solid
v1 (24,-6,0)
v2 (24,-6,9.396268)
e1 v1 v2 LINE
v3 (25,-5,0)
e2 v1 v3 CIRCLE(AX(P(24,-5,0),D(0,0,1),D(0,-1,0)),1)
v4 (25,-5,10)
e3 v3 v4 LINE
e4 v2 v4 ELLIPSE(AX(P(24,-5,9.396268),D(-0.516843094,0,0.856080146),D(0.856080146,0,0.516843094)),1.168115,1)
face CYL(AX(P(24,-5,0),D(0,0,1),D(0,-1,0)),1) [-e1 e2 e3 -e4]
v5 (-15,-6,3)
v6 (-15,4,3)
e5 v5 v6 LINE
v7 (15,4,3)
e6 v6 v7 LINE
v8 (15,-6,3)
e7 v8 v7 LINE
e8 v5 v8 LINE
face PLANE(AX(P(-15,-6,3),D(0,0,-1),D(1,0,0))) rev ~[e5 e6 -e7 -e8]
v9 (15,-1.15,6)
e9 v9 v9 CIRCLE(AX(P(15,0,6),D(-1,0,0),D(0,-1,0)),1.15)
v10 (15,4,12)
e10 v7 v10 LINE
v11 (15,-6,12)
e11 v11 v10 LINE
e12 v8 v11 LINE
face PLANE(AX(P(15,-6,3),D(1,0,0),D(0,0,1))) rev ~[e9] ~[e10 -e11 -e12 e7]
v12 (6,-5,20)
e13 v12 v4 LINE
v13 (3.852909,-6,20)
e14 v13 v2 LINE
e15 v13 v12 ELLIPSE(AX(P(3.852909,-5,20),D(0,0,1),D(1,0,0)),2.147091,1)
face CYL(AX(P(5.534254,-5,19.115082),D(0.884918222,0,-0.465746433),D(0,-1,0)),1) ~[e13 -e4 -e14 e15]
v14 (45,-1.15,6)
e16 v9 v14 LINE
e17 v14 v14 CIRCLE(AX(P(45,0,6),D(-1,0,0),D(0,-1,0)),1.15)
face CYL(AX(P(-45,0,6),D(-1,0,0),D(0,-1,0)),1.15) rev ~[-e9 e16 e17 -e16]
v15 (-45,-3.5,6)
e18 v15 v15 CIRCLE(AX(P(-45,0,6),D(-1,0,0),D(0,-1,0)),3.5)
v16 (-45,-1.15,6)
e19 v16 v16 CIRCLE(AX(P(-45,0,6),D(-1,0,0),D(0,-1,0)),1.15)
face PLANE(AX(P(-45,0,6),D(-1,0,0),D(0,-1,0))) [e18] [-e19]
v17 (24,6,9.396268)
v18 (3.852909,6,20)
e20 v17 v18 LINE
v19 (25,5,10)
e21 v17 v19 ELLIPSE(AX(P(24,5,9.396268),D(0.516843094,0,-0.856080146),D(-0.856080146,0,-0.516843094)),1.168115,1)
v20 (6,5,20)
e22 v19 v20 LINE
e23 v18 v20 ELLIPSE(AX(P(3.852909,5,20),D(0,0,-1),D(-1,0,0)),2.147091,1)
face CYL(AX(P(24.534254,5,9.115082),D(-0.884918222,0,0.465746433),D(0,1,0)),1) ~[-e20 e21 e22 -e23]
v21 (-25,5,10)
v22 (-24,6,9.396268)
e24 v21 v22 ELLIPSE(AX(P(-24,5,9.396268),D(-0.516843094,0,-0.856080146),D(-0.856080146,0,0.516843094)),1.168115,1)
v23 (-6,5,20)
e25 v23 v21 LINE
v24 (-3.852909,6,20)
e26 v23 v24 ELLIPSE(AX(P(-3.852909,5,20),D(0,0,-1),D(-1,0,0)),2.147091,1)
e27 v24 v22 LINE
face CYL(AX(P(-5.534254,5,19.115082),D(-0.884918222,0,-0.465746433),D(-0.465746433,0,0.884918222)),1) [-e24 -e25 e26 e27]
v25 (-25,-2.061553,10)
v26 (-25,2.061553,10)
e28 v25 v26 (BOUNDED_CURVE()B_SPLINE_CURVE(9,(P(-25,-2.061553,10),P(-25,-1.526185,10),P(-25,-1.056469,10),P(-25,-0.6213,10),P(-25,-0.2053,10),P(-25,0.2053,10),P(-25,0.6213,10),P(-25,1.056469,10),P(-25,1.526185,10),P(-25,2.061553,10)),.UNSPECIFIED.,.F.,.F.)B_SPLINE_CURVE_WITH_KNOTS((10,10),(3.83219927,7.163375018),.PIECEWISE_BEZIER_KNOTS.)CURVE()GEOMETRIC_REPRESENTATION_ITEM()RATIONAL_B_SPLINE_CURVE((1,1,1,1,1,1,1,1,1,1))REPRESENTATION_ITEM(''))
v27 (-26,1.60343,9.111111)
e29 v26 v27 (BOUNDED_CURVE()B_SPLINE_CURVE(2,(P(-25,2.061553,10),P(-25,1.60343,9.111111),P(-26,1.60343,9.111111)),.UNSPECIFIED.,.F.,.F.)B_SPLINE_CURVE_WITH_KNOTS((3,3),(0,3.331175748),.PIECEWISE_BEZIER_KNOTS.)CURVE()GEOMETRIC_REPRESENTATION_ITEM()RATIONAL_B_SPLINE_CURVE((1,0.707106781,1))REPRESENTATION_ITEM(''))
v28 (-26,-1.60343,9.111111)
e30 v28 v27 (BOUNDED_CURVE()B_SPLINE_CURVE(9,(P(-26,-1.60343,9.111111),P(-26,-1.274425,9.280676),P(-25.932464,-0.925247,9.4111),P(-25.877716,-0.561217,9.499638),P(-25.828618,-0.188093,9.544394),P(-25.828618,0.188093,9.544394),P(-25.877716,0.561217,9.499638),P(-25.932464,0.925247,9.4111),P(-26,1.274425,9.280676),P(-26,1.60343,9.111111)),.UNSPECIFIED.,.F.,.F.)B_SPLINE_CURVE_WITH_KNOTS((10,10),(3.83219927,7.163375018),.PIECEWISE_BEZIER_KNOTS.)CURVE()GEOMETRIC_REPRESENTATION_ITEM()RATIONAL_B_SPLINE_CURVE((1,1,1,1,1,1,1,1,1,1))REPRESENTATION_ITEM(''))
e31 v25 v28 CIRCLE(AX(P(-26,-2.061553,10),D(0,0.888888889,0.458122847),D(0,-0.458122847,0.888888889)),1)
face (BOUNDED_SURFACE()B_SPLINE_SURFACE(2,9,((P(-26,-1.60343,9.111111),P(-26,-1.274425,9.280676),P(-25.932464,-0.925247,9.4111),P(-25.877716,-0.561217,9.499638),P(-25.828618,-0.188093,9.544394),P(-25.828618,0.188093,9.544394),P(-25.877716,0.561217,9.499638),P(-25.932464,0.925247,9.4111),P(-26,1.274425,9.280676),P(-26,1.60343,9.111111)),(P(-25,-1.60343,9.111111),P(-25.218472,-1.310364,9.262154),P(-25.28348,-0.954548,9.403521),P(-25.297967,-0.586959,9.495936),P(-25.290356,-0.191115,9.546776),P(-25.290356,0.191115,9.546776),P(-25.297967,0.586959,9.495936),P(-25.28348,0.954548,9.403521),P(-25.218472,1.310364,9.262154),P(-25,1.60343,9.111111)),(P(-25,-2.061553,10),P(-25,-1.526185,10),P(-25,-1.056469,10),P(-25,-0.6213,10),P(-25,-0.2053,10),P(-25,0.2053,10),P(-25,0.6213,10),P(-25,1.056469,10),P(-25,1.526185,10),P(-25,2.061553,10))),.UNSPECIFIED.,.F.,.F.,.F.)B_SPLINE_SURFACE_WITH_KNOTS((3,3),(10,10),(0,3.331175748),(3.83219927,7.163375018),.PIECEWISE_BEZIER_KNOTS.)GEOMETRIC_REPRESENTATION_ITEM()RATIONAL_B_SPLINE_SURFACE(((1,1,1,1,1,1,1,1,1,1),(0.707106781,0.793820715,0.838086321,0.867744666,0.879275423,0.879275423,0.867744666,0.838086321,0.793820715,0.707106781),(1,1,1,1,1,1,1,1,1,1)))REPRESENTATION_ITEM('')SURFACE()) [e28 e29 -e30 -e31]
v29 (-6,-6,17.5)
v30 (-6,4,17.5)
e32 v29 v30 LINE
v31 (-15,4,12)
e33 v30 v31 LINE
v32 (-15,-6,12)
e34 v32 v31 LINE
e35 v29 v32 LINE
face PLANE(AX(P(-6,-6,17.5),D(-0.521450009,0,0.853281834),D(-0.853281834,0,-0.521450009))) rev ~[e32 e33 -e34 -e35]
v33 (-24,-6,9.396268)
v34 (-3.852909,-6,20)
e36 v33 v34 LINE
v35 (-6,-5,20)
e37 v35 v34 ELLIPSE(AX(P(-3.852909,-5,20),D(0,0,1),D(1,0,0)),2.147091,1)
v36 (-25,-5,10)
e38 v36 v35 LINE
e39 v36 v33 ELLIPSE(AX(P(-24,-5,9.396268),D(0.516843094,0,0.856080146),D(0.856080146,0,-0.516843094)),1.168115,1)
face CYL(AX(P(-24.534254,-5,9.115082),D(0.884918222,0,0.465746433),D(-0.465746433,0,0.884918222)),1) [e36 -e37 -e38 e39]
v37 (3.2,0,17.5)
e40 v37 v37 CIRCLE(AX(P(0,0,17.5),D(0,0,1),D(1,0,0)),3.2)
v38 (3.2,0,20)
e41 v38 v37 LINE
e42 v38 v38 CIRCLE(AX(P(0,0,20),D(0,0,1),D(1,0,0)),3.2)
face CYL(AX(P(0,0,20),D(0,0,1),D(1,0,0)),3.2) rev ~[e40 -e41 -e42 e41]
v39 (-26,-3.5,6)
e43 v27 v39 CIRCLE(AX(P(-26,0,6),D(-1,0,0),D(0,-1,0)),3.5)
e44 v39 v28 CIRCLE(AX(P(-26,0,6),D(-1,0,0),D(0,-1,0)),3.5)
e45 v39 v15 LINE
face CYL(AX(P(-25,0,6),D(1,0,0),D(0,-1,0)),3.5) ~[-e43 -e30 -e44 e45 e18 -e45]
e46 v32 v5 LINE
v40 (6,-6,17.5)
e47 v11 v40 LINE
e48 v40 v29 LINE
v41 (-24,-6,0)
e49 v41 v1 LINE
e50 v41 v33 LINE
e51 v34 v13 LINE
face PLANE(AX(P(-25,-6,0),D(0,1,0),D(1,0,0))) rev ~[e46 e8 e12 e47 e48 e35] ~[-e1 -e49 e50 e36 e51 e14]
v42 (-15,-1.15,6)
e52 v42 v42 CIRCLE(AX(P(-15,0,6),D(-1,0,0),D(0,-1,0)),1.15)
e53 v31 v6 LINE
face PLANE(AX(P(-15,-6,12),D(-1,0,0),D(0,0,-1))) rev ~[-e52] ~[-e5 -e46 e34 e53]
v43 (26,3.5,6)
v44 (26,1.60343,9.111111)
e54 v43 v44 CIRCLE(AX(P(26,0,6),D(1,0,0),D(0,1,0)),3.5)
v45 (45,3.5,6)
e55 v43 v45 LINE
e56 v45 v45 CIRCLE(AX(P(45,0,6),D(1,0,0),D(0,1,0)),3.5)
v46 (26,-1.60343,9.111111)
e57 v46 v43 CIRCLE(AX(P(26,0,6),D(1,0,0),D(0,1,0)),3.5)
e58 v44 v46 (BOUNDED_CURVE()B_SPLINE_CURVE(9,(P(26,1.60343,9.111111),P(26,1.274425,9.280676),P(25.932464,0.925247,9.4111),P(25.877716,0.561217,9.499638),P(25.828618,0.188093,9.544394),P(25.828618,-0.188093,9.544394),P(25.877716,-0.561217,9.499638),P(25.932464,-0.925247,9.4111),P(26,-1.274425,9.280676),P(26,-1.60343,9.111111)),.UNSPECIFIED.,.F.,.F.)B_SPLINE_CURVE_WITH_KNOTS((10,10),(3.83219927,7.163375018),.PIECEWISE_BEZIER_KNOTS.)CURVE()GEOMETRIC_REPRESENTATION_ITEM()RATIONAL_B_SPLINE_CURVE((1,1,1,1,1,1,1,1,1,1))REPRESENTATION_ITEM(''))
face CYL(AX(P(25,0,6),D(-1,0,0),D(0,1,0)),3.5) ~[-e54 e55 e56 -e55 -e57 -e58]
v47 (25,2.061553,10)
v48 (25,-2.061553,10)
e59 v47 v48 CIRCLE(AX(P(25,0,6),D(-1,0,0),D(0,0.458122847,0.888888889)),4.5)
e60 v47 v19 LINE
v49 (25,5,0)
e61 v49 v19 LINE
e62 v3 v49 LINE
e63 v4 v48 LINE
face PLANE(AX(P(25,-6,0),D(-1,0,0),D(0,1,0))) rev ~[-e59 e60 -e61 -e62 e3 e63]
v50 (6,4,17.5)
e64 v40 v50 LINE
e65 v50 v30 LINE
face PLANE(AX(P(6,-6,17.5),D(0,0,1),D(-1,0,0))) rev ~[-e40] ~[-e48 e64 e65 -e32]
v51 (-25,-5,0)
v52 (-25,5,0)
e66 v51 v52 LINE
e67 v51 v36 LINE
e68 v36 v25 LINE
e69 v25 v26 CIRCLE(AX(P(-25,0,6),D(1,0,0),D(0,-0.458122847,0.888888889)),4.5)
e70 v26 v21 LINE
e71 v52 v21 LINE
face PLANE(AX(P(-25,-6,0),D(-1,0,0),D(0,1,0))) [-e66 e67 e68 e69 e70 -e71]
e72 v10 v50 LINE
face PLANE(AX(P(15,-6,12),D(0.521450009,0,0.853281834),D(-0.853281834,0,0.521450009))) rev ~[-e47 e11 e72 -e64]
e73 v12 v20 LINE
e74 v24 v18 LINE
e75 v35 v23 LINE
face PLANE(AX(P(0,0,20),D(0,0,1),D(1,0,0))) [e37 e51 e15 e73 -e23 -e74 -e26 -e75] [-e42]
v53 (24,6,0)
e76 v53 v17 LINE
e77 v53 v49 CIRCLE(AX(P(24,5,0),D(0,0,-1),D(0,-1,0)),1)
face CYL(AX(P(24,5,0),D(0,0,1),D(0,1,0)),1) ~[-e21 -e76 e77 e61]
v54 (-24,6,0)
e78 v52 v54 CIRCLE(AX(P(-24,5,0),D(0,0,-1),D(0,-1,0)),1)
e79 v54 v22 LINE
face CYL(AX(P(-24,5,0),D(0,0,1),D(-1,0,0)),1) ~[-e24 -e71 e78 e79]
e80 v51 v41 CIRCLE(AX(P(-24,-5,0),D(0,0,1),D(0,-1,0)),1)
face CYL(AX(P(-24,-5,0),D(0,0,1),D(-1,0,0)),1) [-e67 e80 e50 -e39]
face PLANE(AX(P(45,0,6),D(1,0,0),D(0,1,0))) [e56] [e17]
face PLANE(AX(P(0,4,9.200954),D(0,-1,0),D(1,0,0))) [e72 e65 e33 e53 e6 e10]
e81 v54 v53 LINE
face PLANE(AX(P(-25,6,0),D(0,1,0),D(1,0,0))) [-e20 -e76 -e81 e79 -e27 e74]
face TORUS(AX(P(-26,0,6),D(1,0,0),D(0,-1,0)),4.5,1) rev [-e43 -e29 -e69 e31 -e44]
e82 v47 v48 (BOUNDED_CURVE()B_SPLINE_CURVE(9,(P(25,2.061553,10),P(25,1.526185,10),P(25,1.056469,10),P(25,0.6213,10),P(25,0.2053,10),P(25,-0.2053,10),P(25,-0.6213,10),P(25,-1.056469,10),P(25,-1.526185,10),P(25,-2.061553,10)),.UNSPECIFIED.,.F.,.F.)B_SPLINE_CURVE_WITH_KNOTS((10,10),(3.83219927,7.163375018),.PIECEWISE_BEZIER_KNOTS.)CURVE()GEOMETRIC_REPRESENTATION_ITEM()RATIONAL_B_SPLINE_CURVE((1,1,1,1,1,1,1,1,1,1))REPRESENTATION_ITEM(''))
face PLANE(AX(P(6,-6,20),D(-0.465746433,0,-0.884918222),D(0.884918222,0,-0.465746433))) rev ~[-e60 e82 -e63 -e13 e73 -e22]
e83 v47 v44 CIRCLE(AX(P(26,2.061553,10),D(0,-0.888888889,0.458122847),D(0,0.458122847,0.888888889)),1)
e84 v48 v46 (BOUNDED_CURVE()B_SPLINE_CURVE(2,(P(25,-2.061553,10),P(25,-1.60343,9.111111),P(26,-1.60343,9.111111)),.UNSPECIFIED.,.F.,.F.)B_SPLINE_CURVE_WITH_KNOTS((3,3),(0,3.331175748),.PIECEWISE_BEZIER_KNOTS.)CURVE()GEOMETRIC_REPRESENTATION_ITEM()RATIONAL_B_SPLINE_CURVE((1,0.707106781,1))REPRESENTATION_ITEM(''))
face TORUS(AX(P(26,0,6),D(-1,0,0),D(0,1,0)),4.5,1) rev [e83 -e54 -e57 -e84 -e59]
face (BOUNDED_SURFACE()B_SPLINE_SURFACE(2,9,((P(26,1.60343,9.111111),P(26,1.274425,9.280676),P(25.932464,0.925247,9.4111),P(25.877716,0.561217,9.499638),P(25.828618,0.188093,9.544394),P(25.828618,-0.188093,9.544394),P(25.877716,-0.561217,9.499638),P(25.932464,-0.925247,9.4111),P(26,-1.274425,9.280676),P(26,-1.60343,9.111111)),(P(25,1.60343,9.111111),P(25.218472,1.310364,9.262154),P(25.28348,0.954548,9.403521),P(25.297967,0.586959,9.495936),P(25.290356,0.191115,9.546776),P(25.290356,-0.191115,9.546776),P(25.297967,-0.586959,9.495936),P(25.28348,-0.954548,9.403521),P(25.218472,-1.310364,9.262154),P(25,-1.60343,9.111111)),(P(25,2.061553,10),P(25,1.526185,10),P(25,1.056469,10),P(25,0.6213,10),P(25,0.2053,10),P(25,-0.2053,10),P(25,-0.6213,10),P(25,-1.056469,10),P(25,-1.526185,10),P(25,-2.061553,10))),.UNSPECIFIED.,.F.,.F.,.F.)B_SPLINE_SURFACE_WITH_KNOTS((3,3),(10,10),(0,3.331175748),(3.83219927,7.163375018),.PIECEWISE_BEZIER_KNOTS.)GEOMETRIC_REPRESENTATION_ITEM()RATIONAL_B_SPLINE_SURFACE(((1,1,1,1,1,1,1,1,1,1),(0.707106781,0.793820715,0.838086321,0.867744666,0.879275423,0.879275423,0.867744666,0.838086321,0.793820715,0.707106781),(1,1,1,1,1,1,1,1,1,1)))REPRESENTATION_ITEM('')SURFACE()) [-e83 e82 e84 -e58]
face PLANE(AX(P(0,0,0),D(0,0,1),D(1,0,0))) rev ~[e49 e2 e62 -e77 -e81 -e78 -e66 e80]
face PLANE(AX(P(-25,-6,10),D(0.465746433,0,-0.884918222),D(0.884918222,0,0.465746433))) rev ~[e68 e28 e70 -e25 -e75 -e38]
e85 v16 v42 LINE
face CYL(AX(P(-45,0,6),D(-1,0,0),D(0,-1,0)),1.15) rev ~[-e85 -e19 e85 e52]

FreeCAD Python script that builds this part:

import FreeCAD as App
import Part
import Sketcher
from FreeCAD import Vector
Q = App.Units.Quantity


def edges_at(feature, points):
    """Names of the edges that pass closest to the given points."""
    edges = feature.Shape.Edges
    near = lambda p: min(range(len(edges)), key=lambda i: edges[i].distToShape(Part.Vertex(*p))[0])
    return sorted({f"Edge{near(p) + 1}" for p in points})

doc = App.newDocument("Part")
params = doc.addObject("Spreadsheet::Sheet", "Params")
for row, (alias, value) in enumerate([
    ("sketch1_width", "50 mm"),
    ("sketch1_height", "12 mm"),
    ("pad1_length", "20 mm"),
    ("sketch2_width", "12 mm"),
    ("sketch2_width2", "50 mm"),
    ("sketch2_height", "20 mm"),
    ("pocket1_length", "20 mm"),
    ("sketch3_width", "30 mm"),
    ("sketch3_width2", "12 mm"),
    ("sketch3_height", "9 mm"),
    ("pocket2_length", "10 mm"),
    ("sketch4_diameter", "6.4 mm"),
    ("pocket3_length", "5 mm"),
    ("sketch5_diameter", "7 mm"),
    ("pad2_length", "20 mm"),
    ("sketch6_diameter", "7 mm"),
    ("pad3_length", "20 mm"),
    ("fillet_radius", "1 mm"),
    ("sketch7_diameter", "2.3 mm"),
    ("pocket4_length", "200 mm"),
    ("fillet2_radius", "1 mm"),
], start=1):
    params.set(f"A{row}", alias)
    params.set(f"B{row}", "=" + value)
    params.setAlias(f"B{row}", alias)

body = doc.addObject("PartDesign::Body", "Body")

# Sketch on XY plane
sketch1 = doc.addObject("Sketcher::SketchObject", "Sketch")
body.addObject(sketch1)
sketch1.AttachmentSupport = (doc.XY_Plane, [""])
sketch1.MapMode = "FlatFace"
sketch1.addGeometry(Part.LineSegment(Vector(-25, 6, 0), Vector(-25, -6, 0)), False)
sketch1.addGeometry(Part.LineSegment(Vector(-25, -6, 0), Vector(25, -6, 0)), False)
sketch1.addGeometry(Part.LineSegment(Vector(25, -6, 0), Vector(25, 6, 0)), False)
sketch1.addGeometry(Part.LineSegment(Vector(25, 6, 0), Vector(-25, 6, 0)), False)
sketch1.addConstraint(Sketcher.Constraint("Coincident", 0, 2, 1, 1))
sketch1.addConstraint(Sketcher.Constraint("Coincident", 1, 2, 2, 1))
sketch1.addConstraint(Sketcher.Constraint("Coincident", 2, 2, 3, 1))
sketch1.addConstraint(Sketcher.Constraint("Coincident", 3, 2, 0, 1))
sketch1.addConstraint(Sketcher.Constraint("Vertical", 0))
sketch1.addConstraint(Sketcher.Constraint("Horizontal", 1))
sketch1.addConstraint(Sketcher.Constraint("Vertical", 2))
sketch1.addConstraint(Sketcher.Constraint("Horizontal", 3))
sketch1.addConstraint(Sketcher.Constraint("Symmetric", 0, 2, 2, 2, -1, 1))
sketch1.addConstraint(Sketcher.Constraint("DistanceX", 1, 1, 1, 2, Q("50 mm")))
sketch1.addConstraint(Sketcher.Constraint("DistanceY", 0, 2, 0, 1, Q("12 mm")))
sketch1.setExpression("Constraints[9]", "Params.sketch1_width")
sketch1.setExpression("Constraints[10]", "Params.sketch1_height")
pad1 = doc.addObject("PartDesign::Pad", "Pad")
body.addObject(pad1)
pad1.Profile = sketch1
pad1.setExpression("Length", "Params.pad1_length")

# Sketch on XZ plane
sketch2 = doc.addObject("Sketcher::SketchObject", "Sketch001")
body.addObject(sketch2)
sketch2.AttachmentSupport = (doc.XZ_Plane, [""])
sketch2.MapMode = "FlatFace"
sketch2.AttachmentOffset = App.Placement(Vector(0, 0, 6), App.Rotation())
sketch2.addGeometry(Part.LineSegment(Vector(-25, 30, 0), Vector(-25, 10, 0)), False)
sketch2.addGeometry(Part.LineSegment(Vector(-25, 10, 0), Vector(-6, 20, 0)), False)
sketch2.addGeometry(Part.LineSegment(Vector(-6, 20, 0), Vector(6, 20, 0)), False)
sketch2.addGeometry(Part.LineSegment(Vector(6, 20, 0), Vector(25, 10, 0)), False)
sketch2.addGeometry(Part.LineSegment(Vector(25, 10, 0), Vector(25, 30, 0)), False)
sketch2.addGeometry(Part.LineSegment(Vector(25, 30, 0), Vector(-25, 30, 0)), False)
sketch2.addConstraint(Sketcher.Constraint("Coincident", 0, 2, 1, 1))
sketch2.addConstraint(Sketcher.Constraint("Coincident", 1, 2, 2, 1))
sketch2.addConstraint(Sketcher.Constraint("Coincident", 2, 2, 3, 1))
sketch2.addConstraint(Sketcher.Constraint("Coincident", 3, 2, 4, 1))
sketch2.addConstraint(Sketcher.Constraint("Coincident", 4, 2, 5, 1))
sketch2.addConstraint(Sketcher.Constraint("Coincident", 5, 2, 0, 1))
sketch2.addConstraint(Sketcher.Constraint("Vertical", 0))
sketch2.addConstraint(Sketcher.Constraint("Horizontal", 2))
sketch2.addConstraint(Sketcher.Constraint("Vertical", 4))
sketch2.addConstraint(Sketcher.Constraint("Horizontal", 5))
sketch2.addConstraint(Sketcher.Constraint("Symmetric", 0, 2, 3, 2, -2))
sketch2.addConstraint(Sketcher.Constraint("Equal", 1, 3))
sketch2.addConstraint(Sketcher.Constraint("DistanceX", 2, 1, 2, 2, Q("12 mm")))
sketch2.addConstraint(Sketcher.Constraint("DistanceX", 5, 2, 5, 1, Q("50 mm")))
sketch2.addConstraint(Sketcher.Constraint("DistanceY", 0, 2, 0, 1, Q("20 mm")))
sketch2.addConstraint(Sketcher.Constraint("DistanceY", -1, 1, 0, 2, Q("10 mm")))
sketch2.addConstraint(Sketcher.Constraint("DistanceY", -1, 1, 1, 2, Q("20 mm")))
sketch2.setExpression("Constraints[12]", "Params.sketch2_width")
sketch2.setExpression("Constraints[13]", "Params.sketch2_width2")
sketch2.setExpression("Constraints[14]", "Params.sketch2_height")
pocket1 = doc.addObject("PartDesign::Pocket", "Pocket")
body.addObject(pocket1)
pocket1.Profile = sketch2
pocket1.setExpression("Length", "Params.pocket1_length")

# Sketch on XZ plane
sketch3 = doc.addObject("Sketcher::SketchObject", "Sketch002")
body.addObject(sketch3)
sketch3.AttachmentSupport = (doc.XZ_Plane, [""])
sketch3.MapMode = "FlatFace"
sketch3.AttachmentOffset = App.Placement(Vector(0, 0, 6), App.Rotation())
sketch3.addGeometry(Part.LineSegment(Vector(-15, 12, 0), Vector(-15, 3, 0)), False)
sketch3.addGeometry(Part.LineSegment(Vector(-15, 3, 0), Vector(15, 3, 0)), False)
sketch3.addGeometry(Part.LineSegment(Vector(15, 3, 0), Vector(15, 12, 0)), False)
sketch3.addGeometry(Part.LineSegment(Vector(15, 12, 0), Vector(6, 18, 0)), False)
sketch3.addGeometry(Part.LineSegment(Vector(6, 18, 0), Vector(-6, 18, 0)), False)
sketch3.addGeometry(Part.LineSegment(Vector(-6, 18, 0), Vector(-15, 12, 0)), False)
sketch3.addConstraint(Sketcher.Constraint("Coincident", 0, 2, 1, 1))
sketch3.addConstraint(Sketcher.Constraint("Coincident", 1, 2, 2, 1))
sketch3.addConstraint(Sketcher.Constraint("Coincident", 2, 2, 3, 1))
sketch3.addConstraint(Sketcher.Constraint("Coincident", 3, 2, 4, 1))
sketch3.addConstraint(Sketcher.Constraint("Coincident", 4, 2, 5, 1))
sketch3.addConstraint(Sketcher.Constraint("Coincident", 5, 2, 0, 1))
sketch3.addConstraint(Sketcher.Constraint("Vertical", 0))
sketch3.addConstraint(Sketcher.Constraint("Horizontal", 1))
sketch3.addConstraint(Sketcher.Constraint("Vertical", 2))
sketch3.addConstraint(Sketcher.Constraint("Horizontal", 4))
sketch3.addConstraint(Sketcher.Constraint("Symmetric", 2, 2, 5, 2, -2))
sketch3.addConstraint(Sketcher.Constraint("Equal", 3, 5))
sketch3.addConstraint(Sketcher.Constraint("DistanceX", 1, 1, 1, 2, Q("30 mm")))
sketch3.addConstraint(Sketcher.Constraint("DistanceX", 4, 2, 4, 1, Q("12 mm")))
sketch3.addConstraint(Sketcher.Constraint("DistanceY", 0, 2, 0, 1, Q("9 mm")))
sketch3.addConstraint(Sketcher.Constraint("DistanceY", -1, 1, 0, 2, Q("3 mm")))
sketch3.addConstraint(Sketcher.Constraint("DistanceY", -1, 1, 3, 2, Q("17.5 mm")))
sketch3.setExpression("Constraints[12]", "Params.sketch3_width")
sketch3.setExpression("Constraints[13]", "Params.sketch3_width2")
sketch3.setExpression("Constraints[14]", "Params.sketch3_height")
pocket2 = doc.addObject("PartDesign::Pocket", "Pocket001")
body.addObject(pocket2)
pocket2.Profile = sketch3
pocket2.setExpression("Length", "Params.pocket2_length")

# Sketch on XY plane
sketch4 = doc.addObject("Sketcher::SketchObject", "Sketch003")
body.addObject(sketch4)
sketch4.AttachmentSupport = (doc.XY_Plane, [""])
sketch4.MapMode = "FlatFace"
sketch4.AttachmentOffset = App.Placement(Vector(0, 0, 20), App.Rotation())
sketch4.addGeometry(Part.Circle(Vector(0, 0, 0), Vector(0, 0, 1), 3.2), False)
sketch4.addConstraint(Sketcher.Constraint("Coincident", 0, 3, -1, 1))
sketch4.addConstraint(Sketcher.Constraint("Diameter", 0, Q("6.4 mm")))
sketch4.setExpression("Constraints[1]", "Params.sketch4_diameter")
pocket3 = doc.addObject("PartDesign::Pocket", "Pocket002")
body.addObject(pocket3)
pocket3.Profile = sketch4
pocket3.setExpression("Length", "Params.pocket3_length")

# Sketch on YZ plane
sketch5 = doc.addObject("Sketcher::SketchObject", "Sketch004")
body.addObject(sketch5)
sketch5.AttachmentSupport = (doc.YZ_Plane, [""])
sketch5.MapMode = "FlatFace"
sketch5.AttachmentOffset = App.Placement(Vector(0, 0, -25), App.Rotation())
sketch5.addGeometry(Part.Circle(Vector(0, 6, 0), Vector(0, 0, 1), 3.5), False)
sketch5.addConstraint(Sketcher.Constraint("PointOnObject", 0, 3, -2))
sketch5.addConstraint(Sketcher.Constraint("Diameter", 0, Q("7 mm")))
sketch5.addConstraint(Sketcher.Constraint("DistanceY", -1, 1, 0, 3, Q("6 mm")))
sketch5.setExpression("Constraints[1]", "Params.sketch5_diameter")
pad2 = doc.addObject("PartDesign::Pad", "Pad001")
body.addObject(pad2)
pad2.Profile = sketch5
pad2.setExpression("Length", "Params.pad2_length")
pad2.Reversed = True

# Sketch on YZ plane
sketch6 = doc.addObject("Sketcher::SketchObject", "Sketch005")
body.addObject(sketch6)
sketch6.AttachmentSupport = (doc.YZ_Plane, [""])
sketch6.MapMode = "FlatFace"
sketch6.AttachmentOffset = App.Placement(Vector(0, 0, 25), App.Rotation())
sketch6.addGeometry(Part.Circle(Vector(0, 6, 0), Vector(0, 0, 1), 3.5), False)
sketch6.addConstraint(Sketcher.Constraint("PointOnObject", 0, 3, -2))
sketch6.addConstraint(Sketcher.Constraint("Diameter", 0, Q("7 mm")))
sketch6.addConstraint(Sketcher.Constraint("DistanceY", -1, 1, 0, 3, Q("6 mm")))
sketch6.setExpression("Constraints[1]", "Params.sketch6_diameter")
pad3 = doc.addObject("PartDesign::Pad", "Pad002")
body.addObject(pad3)
pad3.Profile = sketch6
pad3.setExpression("Length", "Params.pad3_length")
doc.recompute()

fillet = doc.addObject("PartDesign::Fillet", "Fillet")
body.addObject(fillet)
fillet.Base = (pad3, edges_at(pad3, [(25, -3.5, 6), (-25, 3.5, 6)]))
fillet.setExpression("Radius", "Params.fillet_radius")

# Sketch on YZ plane
sketch7 = doc.addObject("Sketcher::SketchObject", "Sketch006")
body.addObject(sketch7)
sketch7.AttachmentSupport = (doc.YZ_Plane, [""])
sketch7.MapMode = "FlatFace"
sketch7.AttachmentOffset = App.Placement(Vector(0, 0, -45), App.Rotation())
sketch7.addGeometry(Part.Circle(Vector(0, 6, 0), Vector(0, 0, 1), 1.1), False)
sketch7.addConstraint(Sketcher.Constraint("PointOnObject", 0, 3, -2))
sketch7.addConstraint(Sketcher.Constraint("Diameter", 0, Q("2.3 mm")))
sketch7.addConstraint(Sketcher.Constraint("DistanceY", -1, 1, 0, 3, Q("6 mm")))
sketch7.setExpression("Constraints[1]", "Params.sketch7_diameter")
pocket4 = doc.addObject("PartDesign::Pocket", "Pocket003")
body.addObject(pocket4)
pocket4.Profile = sketch7
pocket4.setExpression("Length", "Params.pocket4_length")
pocket4.Reversed = True
doc.recompute()

fillet2 = doc.addObject("PartDesign::Fillet", "Fillet001")
body.addObject(fillet2)
fillet2.Base = (pocket4, edges_at(pocket4, [
    (-15.5, -6, 15),
    (-25, -6, 5),
    (-25, 6, 5),
    (-15.5, 6, 15),
    (15.5, -6, 15),
    (15.5, 6, 15),
    (25, -6, 5),
    (25, 6, 5),
]))
fillet2.setExpression("Radius", "Params.fillet2_radius")

doc.recompute()
